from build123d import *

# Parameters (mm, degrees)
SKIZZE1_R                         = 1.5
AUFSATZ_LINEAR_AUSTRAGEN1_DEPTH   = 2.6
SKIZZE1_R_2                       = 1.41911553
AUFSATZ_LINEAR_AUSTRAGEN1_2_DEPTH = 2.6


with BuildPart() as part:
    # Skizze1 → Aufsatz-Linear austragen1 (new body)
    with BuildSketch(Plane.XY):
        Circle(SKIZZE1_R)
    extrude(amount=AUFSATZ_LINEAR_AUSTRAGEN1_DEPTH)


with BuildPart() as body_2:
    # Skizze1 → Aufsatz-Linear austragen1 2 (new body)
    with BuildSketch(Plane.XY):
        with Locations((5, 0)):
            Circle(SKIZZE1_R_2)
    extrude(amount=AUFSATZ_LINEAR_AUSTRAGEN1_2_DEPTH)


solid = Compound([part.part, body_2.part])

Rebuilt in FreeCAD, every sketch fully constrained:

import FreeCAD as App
import Part
import Sketcher

V = App.Vector

doc = App.newDocument("Part")
params = doc.addObject("Spreadsheet::Sheet", "Params")
for row, (alias, value) in enumerate([
    ("sketch1_diameter", "3 mm"),
    ("pad1_length", "2.6 mm"),
    ("pad2_length", "2.6 mm"),
], start=1):
    params.set(f"A{row}", alias)
    params.set(f"B{row}", "=" + value)
    params.setAlias(f"B{row}", alias)

body = doc.addObject("PartDesign::Body", "Body")

# Sketch on XY plane
sketch1 = body.newObject("Sketcher::SketchObject", "Sketch")
sketch1.AttachmentSupport = (doc.getObject("XY_Plane"), [""])
sketch1.MapMode = "FlatFace"
sketch1.addGeometry(Part.Circle(V(0, 0, 0), V(0, 0, 1), 1.5), False)
sketch1.addConstraint(Sketcher.Constraint("Coincident", 0, 3, -1, 1))
sketch1.addConstraint(Sketcher.Constraint("Diameter", 0, 3.0))
sketch1.setExpression("Constraints[1]", "Params.sketch1_diameter")
pad1 = body.newObject("PartDesign::Pad", "Pad")
pad1.Profile = sketch1
pad1.setExpression("Length", "Params.pad1_length")
body2 = doc.addObject("PartDesign::Body", "Body001")

# Sketch on XY plane
sketch2 = body2.newObject("Sketcher::SketchObject", "Sketch001")
sketch2.AttachmentSupport = (doc.getObject("XY_Plane001"), [""])
sketch2.MapMode = "FlatFace"
sketch2.addGeometry(Part.Circle(V(5, 0, 0), V(0, 0, 1), 1.4), False)
sketch2.addConstraint(Sketcher.Constraint("PointOnObject", 0, 3, -1))
sketch2.addConstraint(Sketcher.Constraint("DistanceX", -1, 1, 0, 3, 5.0))
sketch2.addConstraint(Sketcher.Constraint("Diameter", 0, 2.838231))
pad2 = body2.newObject("PartDesign::Pad", "Pad001")
pad2.Profile = sketch2
pad2.setExpression("Length", "Params.pad2_length")

doc.recompute()
